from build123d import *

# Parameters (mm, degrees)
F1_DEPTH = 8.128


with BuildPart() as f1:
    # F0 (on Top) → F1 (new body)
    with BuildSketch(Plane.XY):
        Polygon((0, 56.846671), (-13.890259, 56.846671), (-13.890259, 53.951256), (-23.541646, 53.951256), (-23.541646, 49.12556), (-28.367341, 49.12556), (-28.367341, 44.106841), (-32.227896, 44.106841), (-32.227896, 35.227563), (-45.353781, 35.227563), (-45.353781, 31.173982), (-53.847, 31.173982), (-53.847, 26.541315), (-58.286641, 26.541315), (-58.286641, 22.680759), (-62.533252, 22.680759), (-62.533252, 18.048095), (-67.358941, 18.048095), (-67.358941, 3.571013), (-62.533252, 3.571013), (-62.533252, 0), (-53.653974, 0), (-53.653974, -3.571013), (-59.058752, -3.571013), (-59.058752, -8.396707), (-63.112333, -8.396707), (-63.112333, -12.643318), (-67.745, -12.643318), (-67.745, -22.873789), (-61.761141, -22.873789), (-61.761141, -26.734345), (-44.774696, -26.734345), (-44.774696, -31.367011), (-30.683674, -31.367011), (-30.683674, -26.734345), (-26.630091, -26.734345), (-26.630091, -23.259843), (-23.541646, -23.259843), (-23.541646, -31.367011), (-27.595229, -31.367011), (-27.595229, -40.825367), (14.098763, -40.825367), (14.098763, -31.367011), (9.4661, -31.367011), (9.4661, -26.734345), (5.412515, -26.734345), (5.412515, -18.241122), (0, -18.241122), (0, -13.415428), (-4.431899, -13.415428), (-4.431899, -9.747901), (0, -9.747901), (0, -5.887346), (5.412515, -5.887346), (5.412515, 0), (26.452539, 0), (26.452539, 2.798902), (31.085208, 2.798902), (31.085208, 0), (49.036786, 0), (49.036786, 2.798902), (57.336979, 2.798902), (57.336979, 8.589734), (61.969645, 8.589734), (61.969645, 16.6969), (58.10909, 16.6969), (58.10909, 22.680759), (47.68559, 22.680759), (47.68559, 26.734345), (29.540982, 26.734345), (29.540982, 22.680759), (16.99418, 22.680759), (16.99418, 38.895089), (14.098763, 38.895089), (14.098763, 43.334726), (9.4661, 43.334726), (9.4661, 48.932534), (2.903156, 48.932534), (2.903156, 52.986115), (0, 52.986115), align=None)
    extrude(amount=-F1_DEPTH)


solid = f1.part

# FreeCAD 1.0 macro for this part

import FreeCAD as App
import Part
import Sketcher
Q = App.Units.Quantity


def add_polygon(sketch, points):
    """Adds a closed chain of lines whose ends are joined by coincident constraints."""
    first, n = sketch.GeometryCount, len(points)
    for a, b in zip(points, points[1:] + points[:1]):
        sketch.addGeometry(Part.LineSegment(App.Vector(*a, 0), App.Vector(*b, 0)), False)
    for i in range(n):
        sketch.addConstraint(Sketcher.Constraint("Coincident", first + i, 2, first + (i + 1) % n, 1))

doc = App.newDocument("Part")
body = doc.addObject("PartDesign::Body", "Body")

sketch1 = body.newObject("Sketcher::SketchObject", "Sketch")
sketch1.AttachmentSupport = (doc.getObject("XY_Plane"), [""])
sketch1.MapMode = "FlatFace"
add_polygon(sketch1, [(0, 56.8), (-13.9, 56.8), (-13.9, 54), (-23.5, 54), (-23.5, 49.1), (-28.4, 49.1), (-28.4, 44.1), (-32.2, 44.1), (-32.2, 35.2), (-45.4, 35.2), (-45.4, 31.2), (-53.8, 31.2), (-53.8, 26.5), (-58.3, 26.5), (-58.3, 22.7), (-62.5, 22.7), (-62.5, 18), (-67.4, 18), (-67.4, 3.6), (-62.5, 3.6), (-62.5, 0), (-53.7, 0), (-53.7, -3.6), (-59.1, -3.6), (-59.1, -8.4), (-63.1, -8.4), (-63.1, -12.6), (-67.7, -12.6), (-67.7, -22.9), (-61.8, -22.9), (-61.8, -26.7), (-44.8, -26.7), (-44.8, -31.4), (-30.7, -31.4), (-30.7, -26.7), (-26.6, -26.7), (-26.6, -23.3), (-23.5, -23.3), (-23.5, -31.4), (-27.6, -31.4), (-27.6, -40.8), (14.1, -40.8), (14.1, -31.4), (9.5, -31.4), (9.5, -26.7), (5.4, -26.7), (5.4, -18.2), (0, -18.2), (0, -13.4), (-4.4, -13.4), (-4.4, -9.7), (0, -9.7), (0, -5.9), (5.4, -5.9), (5.4, 0), (26.5, 0), (26.5, 2.8), (31.1, 2.8), (31.1, 0), (49, 0), (49, 2.8), (57.3, 2.8), (57.3, 8.6), (62, 8.6), (62, 16.7), (58.1, 16.7), (58.1, 22.7), (47.7, 22.7), (47.7, 26.7), (29.5, 26.7), (29.5, 22.7), (17, 22.7), (17, 38.9), (14.1, 38.9), (14.1, 43.3), (9.5, 43.3), (9.5, 48.9), (2.9, 48.9), (2.9, 53), (0, 53)])
sketch1.addConstraint(Sketcher.Constraint("Horizontal", 0))
sketch1.addConstraint(Sketcher.Constraint("Vertical", 1))
sketch1.addConstraint(Sketcher.Constraint("Horizontal", 2))
sketch1.addConstraint(Sketcher.Constraint("Vertical", 3))
sketch1.addConstraint(Sketcher.Constraint("Horizontal", 4))
sketch1.addConstraint(Sketcher.Constraint("Vertical", 5))
sketch1.addConstraint(Sketcher.Constraint("Horizontal", 6))
sketch1.addConstraint(Sketcher.Constraint("Vertical", 7))
sketch1.addConstraint(Sketcher.Constraint("Horizontal", 8))
sketch1.addConstraint(Sketcher.Constraint("Vertical", 9))
sketch1.addConstraint(Sketcher.Constraint("Horizontal", 10))
sketch1.addConstraint(Sketcher.Constraint("Vertical", 11))
sketch1.addConstraint(Sketcher.Constraint("Horizontal", 12))
sketch1.addConstraint(Sketcher.Constraint("Vertical", 13))
sketch1.addConstraint(Sketcher.Constraint("Horizontal", 14))
sketch1.addConstraint(Sketcher.Constraint("Vertical", 15))
sketch1.addConstraint(Sketcher.Constraint("Horizontal", 16))
sketch1.addConstraint(Sketcher.Constraint("Vertical", 17))
sketch1.addConstraint(Sketcher.Constraint("Horizontal", 18))
sketch1.addConstraint(Sketcher.Constraint("Vertical", 19))
sketch1.addConstraint(Sketcher.Constraint("Horizontal", 20))
sketch1.addConstraint(Sketcher.Constraint("Vertical", 21))
sketch1.addConstraint(Sketcher.Constraint("Horizontal", 22))
sketch1.addConstraint(Sketcher.Constraint("Vertical", 23))
sketch1.addConstraint(Sketcher.Constraint("Horizontal", 24))
sketch1.addConstraint(Sketcher.Constraint("Vertical", 25))
sketch1.addConstraint(Sketcher.Constraint("Horizontal", 26))
sketch1.addConstraint(Sketcher.Constraint("Vertical", 27))
sketch1.addConstraint(Sketcher.Constraint("Horizontal", 28))
sketch1.addConstraint(Sketcher.Constraint("Vertical", 29))
sketch1.addConstraint(Sketcher.Constraint("Horizontal", 30))
sketch1.addConstraint(Sketcher.Constraint("Vertical", 31))
sketch1.addConstraint(Sketcher.Constraint("Horizontal", 32))
sketch1.addConstraint(Sketcher.Constraint("Vertical", 33))
sketch1.addConstraint(Sketcher.Constraint("Horizontal", 34))
sketch1.addConstraint(Sketcher.Constraint("Vertical", 35))
sketch1.addConstraint(Sketcher.Constraint("Horizontal", 36))
sketch1.addConstraint(Sketcher.Constraint("Vertical", 37))
sketch1.addConstraint(Sketcher.Constraint("Horizontal", 38))
sketch1.addConstraint(Sketcher.Constraint("Vertical", 39))
sketch1.addConstraint(Sketcher.Constraint("Horizontal", 40))
sketch1.addConstraint(Sketcher.Constraint("Vertical", 41))
sketch1.addConstraint(Sketcher.Constraint("Horizontal", 42))
sketch1.addConstraint(Sketcher.Constraint("Vertical", 43))
sketch1.addConstraint(Sketcher.Constraint("Horizontal", 44))
sketch1.addConstraint(Sketcher.Constraint("Vertical", 45))
sketch1.addConstraint(Sketcher.Constraint("Horizontal", 46))
sketch1.addConstraint(Sketcher.Constraint("Vertical", 47))
sketch1.addConstraint(Sketcher.Constraint("Horizontal", 48))
sketch1.addConstraint(Sketcher.Constraint("Vertical", 49))
sketch1.addConstraint(Sketcher.Constraint("Horizontal", 50))
sketch1.addConstraint(Sketcher.Constraint("Vertical", 51))
sketch1.addConstraint(Sketcher.Constraint("Horizontal", 52))
sketch1.addConstraint(Sketcher.Constraint("Vertical", 53))
sketch1.addConstraint(Sketcher.Constraint("Horizontal", 54))
sketch1.addConstraint(Sketcher.Constraint("Vertical", 55))
sketch1.addConstraint(Sketcher.Constraint("Horizontal", 56))
sketch1.addConstraint(Sketcher.Constraint("Vertical", 57))
sketch1.addConstraint(Sketcher.Constraint("Horizontal", 58))
sketch1.addConstraint(Sketcher.Constraint("Vertical", 59))
sketch1.addConstraint(Sketcher.Constraint("Horizontal", 60))
sketch1.addConstraint(Sketcher.Constraint("Vertical", 61))
sketch1.addConstraint(Sketcher.Constraint("Horizontal", 62))
sketch1.addConstraint(Sketcher.Constraint("Vertical", 63))
sketch1.addConstraint(Sketcher.Constraint("Horizontal", 64))
sketch1.addConstraint(Sketcher.Constraint("Vertical", 65))
sketch1.addConstraint(Sketcher.Constraint("Horizontal", 66))
sketch1.addConstraint(Sketcher.Constraint("Vertical", 67))
sketch1.addConstraint(Sketcher.Constraint("Horizontal", 68))
sketch1.addConstraint(Sketcher.Constraint("Vertical", 69))
sketch1.addConstraint(Sketcher.Constraint("Horizontal", 70))
sketch1.addConstraint(Sketcher.Constraint("Vertical", 71))
sketch1.addConstraint(Sketcher.Constraint("Horizontal", 72))
sketch1.addConstraint(Sketcher.Constraint("Vertical", 73))
sketch1.addConstraint(Sketcher.Constraint("Horizontal", 74))
sketch1.addConstraint(Sketcher.Constraint("Vertical", 75))
sketch1.addConstraint(Sketcher.Constraint("Horizontal", 76))
sketch1.addConstraint(Sketcher.Constraint("Vertical", 77))
sketch1.addConstraint(Sketcher.Constraint("Horizontal", 78))
sketch1.addConstraint(Sketcher.Constraint("Vertical", 79))
sketch1.addConstraint(Sketcher.Constraint("PointOnObject", 19, 2, -1))
sketch1.addConstraint(Sketcher.Constraint("PointOnObject", 46, 2, -2))
sketch1.addConstraint(Sketcher.Constraint("PointOnObject", 50, 2, -2))
sketch1.addConstraint(Sketcher.Constraint("PointOnObject", 53, 2, -1))
sketch1.addConstraint(Sketcher.Constraint("PointOnObject", 57, 2, -1))
sketch1.addConstraint(Sketcher.Constraint("PointOnObject", 78, 2, -2))
sketch1.addConstraint(Sketcher.Constraint("Horizontal", 30, 2, 33, 2))
sketch1.addConstraint(Sketcher.Constraint("Horizontal", 32, 2, 37, 2))
sketch1.addConstraint(Sketcher.Constraint("Horizontal", 38, 2, 41, 2))
sketch1.addConstraint(Sketcher.Constraint("Horizontal", 34, 2, 43, 2))
sketch1.addConstraint(Sketcher.Constraint("Horizontal", 56, 2, 59, 2))
sketch1.addConstraint(Sketcher.Constraint("Horizontal", 14, 2, 65, 2))
sketch1.addConstraint(Sketcher.Constraint("Horizontal", 66, 2, 69, 2))
sketch1.addConstraint(Sketcher.Constraint("Vertical", 15, 2, 18, 2))
sketch1.addConstraint(Sketcher.Constraint("Vertical", 3, 2, 36, 2))
sketch1.addConstraint(Sketcher.Constraint("Vertical", 45, 2, 52, 2))
sketch1.addConstraint(Sketcher.Constraint("Vertical", 41, 2, 72, 2))
sketch1.addConstraint(Sketcher.Constraint("Vertical", 43, 2, 74, 2))
sketch1.addConstraint(Sketcher.Constraint("Equal", 24, 34))
sketch1.addConstraint(Sketcher.Constraint("Equal", 34, 38))
sketch1.addConstraint(Sketcher.Constraint("Equal", 26, 56))
sketch1.addConstraint(Sketcher.Constraint("Equal", 26, 62))
sketch1.addConstraint(Sketcher.Constraint("Equal", 6, 64))
sketch1.addConstraint(Sketcher.Constraint("Equal", 4, 3))
sketch1.addConstraint(Sketcher.Constraint("Equal", 20, 7))
sketch1.addConstraint(Sketcher.Constraint("Equal", 38, 9))
sketch1.addConstraint(Sketcher.Constraint("Equal", 62, 11))
sketch1.addConstraint(Sketcher.Constraint("Equal", 64, 13))
sketch1.addConstraint(Sketcher.Constraint("Equal", 74, 15))
sketch1.addConstraint(Sketcher.Constraint("Equal", 19, 21))
sketch1.addConstraint(Sketcher.Constraint("Equal", 4, 23))
sketch1.addConstraint(Sketcher.Constraint("Equal", 14, 25))
sketch1.addConstraint(Sketcher.Constraint("Equal", 13, 29))
sketch1.addConstraint(Sketcher.Constraint("Equal", 11, 31))
sketch1.addConstraint(Sketcher.Constraint("Equal", 23, 47))
sketch1.addConstraint(Sketcher.Constraint("Equal", 29, 51))
sketch1.addConstraint(Sketcher.Constraint("Equal", 28, 65))
sketch1.addConstraint(Sketcher.Constraint("Equal", 44, 67))
sketch1.addConstraint(Sketcher.Constraint("Equal", 9, 77))
sketch1.addConstraint(Sketcher.Constraint("Equal", 51, 79))
sketch1.addConstraint(Sketcher.Constraint("DistanceX", 48, 2, 48, 1, Q("4.431899 mm")))
sketch1.addConstraint(Sketcher.Constraint("DistanceX", 66, 2, 66, 1, Q("10.4235 mm")))
sketch1.addConstraint(Sketcher.Constraint("DistanceY", 55, 1, 55, 2, Q("2.798902 mm")))
sketch1.addConstraint(Sketcher.Constraint("DistanceX", 0, 2, 0, 1, Q("13.890259 mm")))
sketch1.addConstraint(Sketcher.Constraint("DistanceX", 10, 2, 10, 1, Q("8.493219 mm")))
sketch1.addConstraint(Sketcher.Constraint("DistanceX", 12, 2, 12, 1, Q("4.439641 mm")))
sketch1.addConstraint(Sketcher.Constraint("DistanceX", 14, 2, 14, 1, Q("4.246611 mm")))
sketch1.addConstraint(Sketcher.Constraint("DistanceX", 16, 2, 16, 1, Q("4.825689 mm")))
sketch1.addConstraint(Sketcher.Constraint("DistanceX", 22, 2, 22, 1, Q("5.404778 mm")))
sketch1.addConstraint(Sketcher.Constraint("DistanceX", 24, 2, 24, 1, Q("4.053581 mm")))
sketch1.addConstraint(Sketcher.Constraint("DistanceX", 28, 1, 28, 2, Q("5.983859 mm")))
sketch1.addConstraint(Sketcher.Constraint("DistanceX", 32, 1, 32, 2, Q("14.091022 mm")))
sketch1.addConstraint(Sketcher.Constraint("DistanceX", 56, 1, 56, 2, Q("4.632669 mm")))
sketch1.addConstraint(Sketcher.Constraint("DistanceY", 5, 2, 5, 1, Q("5.018719 mm")))
sketch1.addConstraint(Sketcher.Constraint("DistanceY", 17, 2, 17, 1, Q("14.477082 mm")))
sketch1.addConstraint(Sketcher.Constraint("DistanceY", 27, 2, 27, 1, Q("10.230471 mm")))
sketch1.addConstraint(Sketcher.Constraint("DistanceY", 37, 2, 37, 1, Q("8.107168 mm")))
sketch1.addConstraint(Sketcher.Constraint("DistanceY", 71, 1, 71, 2, Q("16.21433 mm")))
sketch1.addConstraint(Sketcher.Constraint("DistanceX", 10, 2, -1, 1, Q("53.847 mm")))
sketch1.addConstraint(Sketcher.Constraint("DistanceX", 26, 2, -1, 1, Q("67.745 mm")))
sketch1.addConstraint(Sketcher.Constraint("DistanceX", -1, 1, 42, 2, Q("9.4661 mm")))
sketch1.addConstraint(Sketcher.Constraint("DistanceY", 49, 2, -1, 1, Q("9.747901 mm")))
sketch1.addConstraint(Sketcher.Constraint("DistanceY", -1, 1, 63, 2, Q("16.6969 mm")))
sketch1.addConstraint(Sketcher.Constraint("DistanceX", 2, 2, 2, 1, Q("9.651387 mm")))
sketch1.addConstraint(Sketcher.Constraint("DistanceX", 4, 2, 4, 1, Q("4.825695 mm")))
sketch1.addConstraint(Sketcher.Constraint("DistanceX", 6, 2, 6, 1, Q("3.860555 mm")))
sketch1.addConstraint(Sketcher.Constraint("DistanceX", 30, 1, 30, 2, Q("16.986445 mm")))
sketch1.addConstraint(Sketcher.Constraint("DistanceX", 40, 1, 40, 2, Q("41.693992 mm")))
sketch1.addConstraint(Sketcher.Constraint("DistanceX", 44, 2, 44, 1, Q("4.053585 mm")))
sketch1.addConstraint(Sketcher.Constraint("DistanceX", 54, 1, 54, 2, Q("21.040024 mm")))
sketch1.addConstraint(Sketcher.Constraint("DistanceX", 58, 1, 58, 2, Q("17.951578 mm")))
sketch1.addConstraint(Sketcher.Constraint("DistanceX", 60, 1, 60, 2, Q("8.300193 mm")))
sketch1.addConstraint(Sketcher.Constraint("DistanceX", 68, 2, 68, 1, Q("18.144608 mm")))
sketch1.addConstraint(Sketcher.Constraint("DistanceX", 70, 2, 70, 1, Q("12.546802 mm")))
sketch1.addConstraint(Sketcher.Constraint("DistanceX", 76, 2, 76, 1, Q("6.562944 mm")))
sketch1.addConstraint(Sketcher.Constraint("DistanceY", 1, 2, 1, 1, Q("2.895415 mm")))
sketch1.addConstraint(Sketcher.Constraint("DistanceY", 39, 2, 39, 1, Q("9.458356 mm")))
sketch1.addConstraint(Sketcher.Constraint("DistanceY", 45, 1, 45, 2, Q("8.493223 mm")))
sketch1.addConstraint(Sketcher.Constraint("DistanceY", 61, 1, 61, 2, Q("5.790832 mm")))
sketch1.addConstraint(Sketcher.Constraint("DistanceY", 73, 1, 73, 2, Q("4.439637 mm")))
pad1 = body.newObject("PartDesign::Pad", "Pad")
pad1.Profile = sketch1
pad1.Length = Q("0.32 in")
pad1.Reversed = True

doc.recompute()
